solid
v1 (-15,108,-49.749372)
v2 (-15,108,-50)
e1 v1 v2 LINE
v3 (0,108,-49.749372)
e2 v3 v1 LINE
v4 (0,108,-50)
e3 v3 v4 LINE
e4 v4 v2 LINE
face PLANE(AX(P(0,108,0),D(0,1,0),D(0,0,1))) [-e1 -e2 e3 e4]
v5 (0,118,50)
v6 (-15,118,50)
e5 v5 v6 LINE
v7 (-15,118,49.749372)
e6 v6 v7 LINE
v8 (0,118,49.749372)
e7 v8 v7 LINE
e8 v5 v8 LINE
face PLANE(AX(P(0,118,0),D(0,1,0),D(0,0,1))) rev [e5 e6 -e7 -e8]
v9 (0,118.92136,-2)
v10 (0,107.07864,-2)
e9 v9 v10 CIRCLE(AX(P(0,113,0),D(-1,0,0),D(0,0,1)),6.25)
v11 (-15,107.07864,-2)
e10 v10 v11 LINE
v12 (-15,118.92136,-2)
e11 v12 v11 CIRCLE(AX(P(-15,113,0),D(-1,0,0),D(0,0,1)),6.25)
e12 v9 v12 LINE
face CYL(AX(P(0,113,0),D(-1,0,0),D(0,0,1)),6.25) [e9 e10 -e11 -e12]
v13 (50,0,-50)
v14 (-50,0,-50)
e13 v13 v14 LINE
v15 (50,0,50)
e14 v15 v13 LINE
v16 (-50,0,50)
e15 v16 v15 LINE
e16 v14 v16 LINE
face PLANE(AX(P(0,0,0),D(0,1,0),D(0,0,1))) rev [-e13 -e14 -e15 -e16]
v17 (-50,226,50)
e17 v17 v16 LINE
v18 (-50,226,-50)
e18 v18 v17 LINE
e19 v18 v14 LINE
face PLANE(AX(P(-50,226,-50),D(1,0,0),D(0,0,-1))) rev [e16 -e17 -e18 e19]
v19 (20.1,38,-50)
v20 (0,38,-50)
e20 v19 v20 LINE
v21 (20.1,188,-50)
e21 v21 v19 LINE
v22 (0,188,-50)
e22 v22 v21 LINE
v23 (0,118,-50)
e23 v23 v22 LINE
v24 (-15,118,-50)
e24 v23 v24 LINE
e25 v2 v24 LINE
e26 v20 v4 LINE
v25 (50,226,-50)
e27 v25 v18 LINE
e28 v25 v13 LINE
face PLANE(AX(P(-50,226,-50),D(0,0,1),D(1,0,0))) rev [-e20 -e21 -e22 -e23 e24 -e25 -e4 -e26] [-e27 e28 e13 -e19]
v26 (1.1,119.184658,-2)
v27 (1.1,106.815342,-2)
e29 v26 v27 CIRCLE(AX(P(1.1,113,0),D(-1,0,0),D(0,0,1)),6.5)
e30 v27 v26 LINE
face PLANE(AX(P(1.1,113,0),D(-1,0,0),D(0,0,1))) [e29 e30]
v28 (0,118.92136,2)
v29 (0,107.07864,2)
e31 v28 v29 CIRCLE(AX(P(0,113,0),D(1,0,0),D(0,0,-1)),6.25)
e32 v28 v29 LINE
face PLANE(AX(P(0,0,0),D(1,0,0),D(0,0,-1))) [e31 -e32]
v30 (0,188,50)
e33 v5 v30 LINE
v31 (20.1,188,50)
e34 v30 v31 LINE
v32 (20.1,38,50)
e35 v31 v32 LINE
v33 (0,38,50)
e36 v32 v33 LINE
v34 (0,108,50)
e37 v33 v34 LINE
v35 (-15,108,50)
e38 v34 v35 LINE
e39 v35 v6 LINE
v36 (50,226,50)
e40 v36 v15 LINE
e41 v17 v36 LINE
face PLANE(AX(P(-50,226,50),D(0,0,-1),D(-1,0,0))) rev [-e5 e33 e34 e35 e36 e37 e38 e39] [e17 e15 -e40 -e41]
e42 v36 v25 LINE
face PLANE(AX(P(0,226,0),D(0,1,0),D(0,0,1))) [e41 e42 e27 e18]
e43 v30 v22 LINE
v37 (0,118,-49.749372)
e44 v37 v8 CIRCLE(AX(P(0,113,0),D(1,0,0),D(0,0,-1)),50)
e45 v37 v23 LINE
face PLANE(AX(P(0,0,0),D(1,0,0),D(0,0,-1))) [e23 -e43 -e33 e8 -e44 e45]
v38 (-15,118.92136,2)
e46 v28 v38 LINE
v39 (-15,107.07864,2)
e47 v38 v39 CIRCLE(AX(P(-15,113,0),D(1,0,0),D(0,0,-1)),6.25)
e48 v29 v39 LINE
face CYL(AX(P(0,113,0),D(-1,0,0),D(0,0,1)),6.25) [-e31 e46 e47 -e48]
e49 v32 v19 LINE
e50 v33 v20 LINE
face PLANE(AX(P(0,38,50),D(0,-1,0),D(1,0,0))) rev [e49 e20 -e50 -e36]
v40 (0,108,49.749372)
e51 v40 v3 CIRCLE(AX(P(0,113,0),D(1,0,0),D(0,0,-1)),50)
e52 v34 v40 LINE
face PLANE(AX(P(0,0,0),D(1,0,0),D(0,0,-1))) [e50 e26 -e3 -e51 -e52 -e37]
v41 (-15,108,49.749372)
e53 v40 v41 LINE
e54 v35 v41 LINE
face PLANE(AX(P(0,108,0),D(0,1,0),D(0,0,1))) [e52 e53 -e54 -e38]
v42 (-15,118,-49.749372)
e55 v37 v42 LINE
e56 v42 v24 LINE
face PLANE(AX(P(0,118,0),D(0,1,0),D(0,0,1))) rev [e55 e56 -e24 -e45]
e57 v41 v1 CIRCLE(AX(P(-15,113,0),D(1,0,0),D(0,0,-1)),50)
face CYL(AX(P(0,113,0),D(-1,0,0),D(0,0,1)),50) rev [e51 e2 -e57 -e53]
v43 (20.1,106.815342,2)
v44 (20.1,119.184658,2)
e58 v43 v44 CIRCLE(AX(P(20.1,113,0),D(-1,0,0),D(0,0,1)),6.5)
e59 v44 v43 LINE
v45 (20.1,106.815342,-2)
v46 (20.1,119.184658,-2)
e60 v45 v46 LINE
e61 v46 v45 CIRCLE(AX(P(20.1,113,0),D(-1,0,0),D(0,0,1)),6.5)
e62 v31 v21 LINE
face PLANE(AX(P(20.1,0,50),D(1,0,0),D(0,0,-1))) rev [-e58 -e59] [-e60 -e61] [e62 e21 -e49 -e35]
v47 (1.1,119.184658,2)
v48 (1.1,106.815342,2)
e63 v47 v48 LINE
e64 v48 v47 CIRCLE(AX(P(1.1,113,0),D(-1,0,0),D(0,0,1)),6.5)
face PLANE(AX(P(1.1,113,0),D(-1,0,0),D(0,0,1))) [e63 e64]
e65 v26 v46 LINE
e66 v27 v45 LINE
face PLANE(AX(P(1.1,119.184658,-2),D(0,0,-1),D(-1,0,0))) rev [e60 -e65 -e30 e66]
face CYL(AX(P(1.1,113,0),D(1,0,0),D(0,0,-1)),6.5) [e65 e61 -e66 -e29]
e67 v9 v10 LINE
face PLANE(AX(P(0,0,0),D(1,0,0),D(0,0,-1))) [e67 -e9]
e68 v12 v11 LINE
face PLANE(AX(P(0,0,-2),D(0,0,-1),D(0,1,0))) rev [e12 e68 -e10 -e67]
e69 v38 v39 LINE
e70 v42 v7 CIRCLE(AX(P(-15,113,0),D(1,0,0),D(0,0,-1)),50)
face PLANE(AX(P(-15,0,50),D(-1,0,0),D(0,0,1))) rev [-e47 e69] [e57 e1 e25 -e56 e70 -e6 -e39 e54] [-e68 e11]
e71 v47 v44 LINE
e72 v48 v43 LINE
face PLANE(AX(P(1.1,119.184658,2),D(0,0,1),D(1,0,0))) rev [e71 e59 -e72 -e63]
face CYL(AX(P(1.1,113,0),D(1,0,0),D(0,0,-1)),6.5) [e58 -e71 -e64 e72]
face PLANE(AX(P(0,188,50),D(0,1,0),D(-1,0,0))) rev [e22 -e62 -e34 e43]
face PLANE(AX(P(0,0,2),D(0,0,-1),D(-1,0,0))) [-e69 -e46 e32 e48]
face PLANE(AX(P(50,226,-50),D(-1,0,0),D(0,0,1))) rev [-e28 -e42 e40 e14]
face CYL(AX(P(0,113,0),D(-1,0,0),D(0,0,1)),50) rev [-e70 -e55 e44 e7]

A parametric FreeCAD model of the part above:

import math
import FreeCAD as App
import Part
import Sketcher
from FreeCAD import Vector
Q = App.Units.Quantity


def add_polygon(sketch, points):
    """Adds a closed chain of lines whose ends are joined by coincident constraints."""
    first, n = sketch.GeometryCount, len(points)
    for a, b in zip(points, points[1:] + points[:1]):
        sketch.addGeometry(Part.LineSegment(App.Vector(*a, 0), App.Vector(*b, 0)), False)
    for i in range(n):
        sketch.addConstraint(Sketcher.Constraint("Coincident", first + i, 2, first + (i + 1) % n, 1))

doc = App.newDocument("Part")
body = doc.addObject("PartDesign::Body", "Body")

sketch1 = body.newObject("Sketcher::SketchObject", "Sketch")
sketch1.AttachmentSupport = (doc.getObject("XZ_Plane"), [""])
sketch1.MapMode = "FlatFace"
add_polygon(sketch1, [(-50, -50), (-50, 50), (50, 50), (50, -50)])
sketch1.addConstraint(Sketcher.Constraint("Vertical", 0))
sketch1.addConstraint(Sketcher.Constraint("Horizontal", 1))
sketch1.addConstraint(Sketcher.Constraint("Vertical", 2))
sketch1.addConstraint(Sketcher.Constraint("Horizontal", 3))
sketch1.addConstraint(Sketcher.Constraint("Symmetric", 0, 2, 2, 2, -1, 1))
sketch1.addConstraint(Sketcher.Constraint("Equal", 3, 0))
sketch1.addConstraint(Sketcher.Constraint("DistanceX", 1, 1, 1, 2, Q("100 mm")))
pad1 = body.newObject("PartDesign::Pad", "Pad")
pad1.Profile = sketch1
pad1.Length = 226
pad1.Reversed = True

sketch2 = body.newObject("Sketcher::SketchObject", "Sketch001")
sketch2.AttachmentSupport = (doc.getObject("XY_Plane"), [""])
sketch2.MapMode = "FlatFace"
sketch2.AttachmentOffset = App.Placement(Vector(0, 0, -50), App.Rotation())
add_polygon(sketch2, [(20.1, 188), (20.1, 38), (-15, 38), (-15, 188)])
sketch2.addConstraint(Sketcher.Constraint("Vertical", 0))
sketch2.addConstraint(Sketcher.Constraint("Horizontal", 1))
sketch2.addConstraint(Sketcher.Constraint("Vertical", 2))
sketch2.addConstraint(Sketcher.Constraint("Horizontal", 3))
sketch2.addConstraint(Sketcher.Constraint("DistanceY", 0, 2, 0, 1, Q("150 mm")))
sketch2.addConstraint(Sketcher.Constraint("DistanceX", 1, 2, 1, 1, Q("35.1 mm")))
sketch2.addConstraint(Sketcher.Constraint("DistanceY", -1, 1, 0, 2, Q("38 mm")))
sketch2.addConstraint(Sketcher.Constraint("DistanceX", 1, 2, -1, 1, Q("15 mm")))
pocket1 = body.newObject("PartDesign::Pocket", "Pocket")
pocket1.Profile = sketch2
pocket1.Type = "ThroughAll"
pocket1.Reversed = True

sketch3 = body.newObject("Sketcher::SketchObject", "Sketch002")
sketch3.AttachmentSupport = (doc.getObject("YZ_Plane"), [""])
sketch3.MapMode = "FlatFace"
sketch3.AttachmentOffset = App.Placement(Vector(0, 0, -15), App.Rotation())
sketch3.addGeometry(Part.ArcOfCircle(Part.Circle(Vector(113, 0, 0), Vector(0, 0, 1), 6.25), math.radians(18.662925), math.radians(161.337075)), False)
sketch3.addGeometry(Part.LineSegment(Vector(107.07864, 2, 0), Vector(118.92136, 2, 0)), False)
sketch3.addGeometry(Part.LineSegment(Vector(118.92136, -2, 0), Vector(107.07864, -2, 0)), False)
sketch3.addGeometry(Part.ArcOfCircle(Part.Circle(Vector(113, 0, 0), Vector(0, 0, 1), 6.25), math.radians(-161.337075), math.radians(-18.662925)), False)
sketch3.addGeometry(Part.LineSegment(Vector(118, 50, 0), Vector(118, 49.749372, 0)), False)
sketch3.addGeometry(Part.ArcOfCircle(Part.Circle(Vector(113, 0, 0), Vector(0, 0, 1), 50), math.radians(-84.26083), math.radians(84.26083)), False)
sketch3.addGeometry(Part.LineSegment(Vector(118, -49.749372, 0), Vector(118, -50, 0)), False)
sketch3.addGeometry(Part.LineSegment(Vector(118, -50, 0), Vector(188, -50, 0)), False)
sketch3.addGeometry(Part.LineSegment(Vector(188, -50, 0), Vector(188, 50, 0)), False)
sketch3.addGeometry(Part.LineSegment(Vector(188, 50, 0), Vector(118, 50, 0)), False)
sketch3.addGeometry(Part.ArcOfCircle(Part.Circle(Vector(113, 0, 0), Vector(0, 0, 1), 50), math.radians(95.73917), math.radians(264.26083)), False)
sketch3.addGeometry(Part.LineSegment(Vector(108, 49.749372, 0), Vector(108, 50, 0)), False)
sketch3.addGeometry(Part.LineSegment(Vector(108, 50, 0), Vector(38, 50, 0)), False)
sketch3.addGeometry(Part.LineSegment(Vector(38, 50, 0), Vector(38, -50, 0)), False)
sketch3.addGeometry(Part.LineSegment(Vector(38, -50, 0), Vector(108, -50, 0)), False)
sketch3.addGeometry(Part.LineSegment(Vector(108, -50, 0), Vector(108, -49.749372, 0)), False)
sketch3.addConstraint(Sketcher.Constraint("Coincident", 0, 1, 1, 2))
sketch3.addConstraint(Sketcher.Constraint("Coincident", 1, 1, 0, 2))
sketch3.addConstraint(Sketcher.Constraint("Coincident", 2, 1, 3, 2))
sketch3.addConstraint(Sketcher.Constraint("Coincident", 3, 1, 2, 2))
sketch3.addConstraint(Sketcher.Constraint("Coincident", 4, 2, 5, 2))
sketch3.addConstraint(Sketcher.Constraint("Coincident", 5, 1, 6, 1))
sketch3.addConstraint(Sketcher.Constraint("Coincident", 6, 2, 7, 1))
sketch3.addConstraint(Sketcher.Constraint("Coincident", 7, 2, 8, 1))
sketch3.addConstraint(Sketcher.Constraint("Coincident", 8, 2, 9, 1))
sketch3.addConstraint(Sketcher.Constraint("Coincident", 9, 2, 4, 1))
sketch3.addConstraint(Sketcher.Constraint("Coincident", 10, 1, 11, 1))
sketch3.addConstraint(Sketcher.Constraint("Coincident", 11, 2, 12, 1))
sketch3.addConstraint(Sketcher.Constraint("Coincident", 12, 2, 13, 1))
sketch3.addConstraint(Sketcher.Constraint("Coincident", 13, 2, 14, 1))
sketch3.addConstraint(Sketcher.Constraint("Coincident", 14, 2, 15, 1))
sketch3.addConstraint(Sketcher.Constraint("Coincident", 15, 2, 10, 2))
sketch3.addConstraint(Sketcher.Constraint("Horizontal", 1))
sketch3.addConstraint(Sketcher.Constraint("Horizontal", 2))
sketch3.addConstraint(Sketcher.Constraint("Vertical", 4))
sketch3.addConstraint(Sketcher.Constraint("Vertical", 6))
sketch3.addConstraint(Sketcher.Constraint("Horizontal", 7))
sketch3.addConstraint(Sketcher.Constraint("Vertical", 8))
sketch3.addConstraint(Sketcher.Constraint("Horizontal", 9))
sketch3.addConstraint(Sketcher.Constraint("Vertical", 11))
sketch3.addConstraint(Sketcher.Constraint("Horizontal", 12))
sketch3.addConstraint(Sketcher.Constraint("Vertical", 13))
sketch3.addConstraint(Sketcher.Constraint("Horizontal", 14))
sketch3.addConstraint(Sketcher.Constraint("Vertical", 15))
sketch3.addConstraint(Sketcher.Constraint("Coincident", 3, 3, 0, 3))
sketch3.addConstraint(Sketcher.Constraint("Coincident", 5, 3, 0, 3))
sketch3.addConstraint(Sketcher.Constraint("Coincident", 10, 3, 0, 3))
sketch3.addConstraint(Sketcher.Constraint("Equal", 0, 3))
sketch3.addConstraint(Sketcher.Constraint("Equal", 5, 10))
sketch3.addConstraint(Sketcher.Constraint("Symmetric", 0, 1, 2, 1, -1))
sketch3.addConstraint(Sketcher.Constraint("Symmetric", 6, 2, 9, 2, -1))
sketch3.addConstraint(Sketcher.Constraint("Symmetric", 11, 2, 14, 2, -1))
sketch3.addConstraint(Sketcher.Constraint("Horizontal", 4, 2, 10, 1))
sketch3.addConstraint(Sketcher.Constraint("Horizontal", 9, 2, 11, 2))
sketch3.addConstraint(Sketcher.Constraint("Equal", 9, 12))
sketch3.addConstraint(Sketcher.Constraint("Radius", 5, Q("50 mm")))
sketch3.addConstraint(Sketcher.Constraint("DistanceX", 7, 1, 7, 2, Q("70 mm")))
sketch3.addConstraint(Sketcher.Constraint("DistanceY", 8, 1, 8, 2, Q("100 mm")))
sketch3.addConstraint(Sketcher.Constraint("Radius", 0, Q("6.25 mm")))
sketch3.addConstraint(Sketcher.Constraint("DistanceX", -1, 1, 0, 3, Q("113 mm")))
sketch3.addConstraint(Sketcher.Constraint("DistanceY", -1, 1, 0, 1, Q("2 mm")))
sketch3.addConstraint(Sketcher.Constraint("DistanceX", -1, 1, 4, 2, Q("118 mm")))
pad2 = body.newObject("PartDesign::Pad", "Pad001")
pad2.Profile = sketch3
pad2.Length = 15

sketch4 = body.newObject("Sketcher::SketchObject", "Sketch003")
sketch4.AttachmentSupport = (doc.getObject("YZ_Plane"), [""])
sketch4.MapMode = "FlatFace"
sketch4.AttachmentOffset = App.Placement(Vector(0, 0, 20.1), App.Rotation())
sketch4.addGeometry(Part.LineSegment(Vector(106.815342, -2, 0), Vector(119.184658, -2, 0)), False)
sketch4.addGeometry(Part.ArcOfCircle(Part.Circle(Vector(113, 0, 0), Vector(0, 0, 1), 6.5), math.radians(-162.079787), math.radians(-17.920213)), False)
sketch4.addGeometry(Part.LineSegment(Vector(119.184658, 2, 0), Vector(106.815342, 2, 0)), False)
sketch4.addGeometry(Part.ArcOfCircle(Part.Circle(Vector(113, 0, 0), Vector(0, 0, 1), 6.5), math.radians(17.920213), math.radians(162.079787)), False)
sketch4.addConstraint(Sketcher.Constraint("Coincident", 0, 1, 1, 1))
sketch4.addConstraint(Sketcher.Constraint("Coincident", 1, 2, 0, 2))
sketch4.addConstraint(Sketcher.Constraint("Coincident", 2, 1, 3, 1))
sketch4.addConstraint(Sketcher.Constraint("Coincident", 3, 2, 2, 2))
sketch4.addConstraint(Sketcher.Constraint("Horizontal", 0))
sketch4.addConstraint(Sketcher.Constraint("Horizontal", 2))
sketch4.addConstraint(Sketcher.Constraint("Coincident", 3, 3, 1, 3))
sketch4.addConstraint(Sketcher.Constraint("Equal", 1, 3))
sketch4.addConstraint(Sketcher.Constraint("Symmetric", 1, 2, 2, 1, -1))
sketch4.addConstraint(Sketcher.Constraint("Radius", 1, Q("6.5 mm")))
sketch4.addConstraint(Sketcher.Constraint("DistanceX", -1, 1, 1, 3, Q("113 mm")))
sketch4.addConstraint(Sketcher.Constraint("DistanceY", 0, 1, -1, 1, Q("2 mm")))
pad3 = body.newObject("PartDesign::Pad", "Pad002")
pad3.Profile = sketch4
pad3.Length = 19
pad3.Reversed = True

doc.recompute()
